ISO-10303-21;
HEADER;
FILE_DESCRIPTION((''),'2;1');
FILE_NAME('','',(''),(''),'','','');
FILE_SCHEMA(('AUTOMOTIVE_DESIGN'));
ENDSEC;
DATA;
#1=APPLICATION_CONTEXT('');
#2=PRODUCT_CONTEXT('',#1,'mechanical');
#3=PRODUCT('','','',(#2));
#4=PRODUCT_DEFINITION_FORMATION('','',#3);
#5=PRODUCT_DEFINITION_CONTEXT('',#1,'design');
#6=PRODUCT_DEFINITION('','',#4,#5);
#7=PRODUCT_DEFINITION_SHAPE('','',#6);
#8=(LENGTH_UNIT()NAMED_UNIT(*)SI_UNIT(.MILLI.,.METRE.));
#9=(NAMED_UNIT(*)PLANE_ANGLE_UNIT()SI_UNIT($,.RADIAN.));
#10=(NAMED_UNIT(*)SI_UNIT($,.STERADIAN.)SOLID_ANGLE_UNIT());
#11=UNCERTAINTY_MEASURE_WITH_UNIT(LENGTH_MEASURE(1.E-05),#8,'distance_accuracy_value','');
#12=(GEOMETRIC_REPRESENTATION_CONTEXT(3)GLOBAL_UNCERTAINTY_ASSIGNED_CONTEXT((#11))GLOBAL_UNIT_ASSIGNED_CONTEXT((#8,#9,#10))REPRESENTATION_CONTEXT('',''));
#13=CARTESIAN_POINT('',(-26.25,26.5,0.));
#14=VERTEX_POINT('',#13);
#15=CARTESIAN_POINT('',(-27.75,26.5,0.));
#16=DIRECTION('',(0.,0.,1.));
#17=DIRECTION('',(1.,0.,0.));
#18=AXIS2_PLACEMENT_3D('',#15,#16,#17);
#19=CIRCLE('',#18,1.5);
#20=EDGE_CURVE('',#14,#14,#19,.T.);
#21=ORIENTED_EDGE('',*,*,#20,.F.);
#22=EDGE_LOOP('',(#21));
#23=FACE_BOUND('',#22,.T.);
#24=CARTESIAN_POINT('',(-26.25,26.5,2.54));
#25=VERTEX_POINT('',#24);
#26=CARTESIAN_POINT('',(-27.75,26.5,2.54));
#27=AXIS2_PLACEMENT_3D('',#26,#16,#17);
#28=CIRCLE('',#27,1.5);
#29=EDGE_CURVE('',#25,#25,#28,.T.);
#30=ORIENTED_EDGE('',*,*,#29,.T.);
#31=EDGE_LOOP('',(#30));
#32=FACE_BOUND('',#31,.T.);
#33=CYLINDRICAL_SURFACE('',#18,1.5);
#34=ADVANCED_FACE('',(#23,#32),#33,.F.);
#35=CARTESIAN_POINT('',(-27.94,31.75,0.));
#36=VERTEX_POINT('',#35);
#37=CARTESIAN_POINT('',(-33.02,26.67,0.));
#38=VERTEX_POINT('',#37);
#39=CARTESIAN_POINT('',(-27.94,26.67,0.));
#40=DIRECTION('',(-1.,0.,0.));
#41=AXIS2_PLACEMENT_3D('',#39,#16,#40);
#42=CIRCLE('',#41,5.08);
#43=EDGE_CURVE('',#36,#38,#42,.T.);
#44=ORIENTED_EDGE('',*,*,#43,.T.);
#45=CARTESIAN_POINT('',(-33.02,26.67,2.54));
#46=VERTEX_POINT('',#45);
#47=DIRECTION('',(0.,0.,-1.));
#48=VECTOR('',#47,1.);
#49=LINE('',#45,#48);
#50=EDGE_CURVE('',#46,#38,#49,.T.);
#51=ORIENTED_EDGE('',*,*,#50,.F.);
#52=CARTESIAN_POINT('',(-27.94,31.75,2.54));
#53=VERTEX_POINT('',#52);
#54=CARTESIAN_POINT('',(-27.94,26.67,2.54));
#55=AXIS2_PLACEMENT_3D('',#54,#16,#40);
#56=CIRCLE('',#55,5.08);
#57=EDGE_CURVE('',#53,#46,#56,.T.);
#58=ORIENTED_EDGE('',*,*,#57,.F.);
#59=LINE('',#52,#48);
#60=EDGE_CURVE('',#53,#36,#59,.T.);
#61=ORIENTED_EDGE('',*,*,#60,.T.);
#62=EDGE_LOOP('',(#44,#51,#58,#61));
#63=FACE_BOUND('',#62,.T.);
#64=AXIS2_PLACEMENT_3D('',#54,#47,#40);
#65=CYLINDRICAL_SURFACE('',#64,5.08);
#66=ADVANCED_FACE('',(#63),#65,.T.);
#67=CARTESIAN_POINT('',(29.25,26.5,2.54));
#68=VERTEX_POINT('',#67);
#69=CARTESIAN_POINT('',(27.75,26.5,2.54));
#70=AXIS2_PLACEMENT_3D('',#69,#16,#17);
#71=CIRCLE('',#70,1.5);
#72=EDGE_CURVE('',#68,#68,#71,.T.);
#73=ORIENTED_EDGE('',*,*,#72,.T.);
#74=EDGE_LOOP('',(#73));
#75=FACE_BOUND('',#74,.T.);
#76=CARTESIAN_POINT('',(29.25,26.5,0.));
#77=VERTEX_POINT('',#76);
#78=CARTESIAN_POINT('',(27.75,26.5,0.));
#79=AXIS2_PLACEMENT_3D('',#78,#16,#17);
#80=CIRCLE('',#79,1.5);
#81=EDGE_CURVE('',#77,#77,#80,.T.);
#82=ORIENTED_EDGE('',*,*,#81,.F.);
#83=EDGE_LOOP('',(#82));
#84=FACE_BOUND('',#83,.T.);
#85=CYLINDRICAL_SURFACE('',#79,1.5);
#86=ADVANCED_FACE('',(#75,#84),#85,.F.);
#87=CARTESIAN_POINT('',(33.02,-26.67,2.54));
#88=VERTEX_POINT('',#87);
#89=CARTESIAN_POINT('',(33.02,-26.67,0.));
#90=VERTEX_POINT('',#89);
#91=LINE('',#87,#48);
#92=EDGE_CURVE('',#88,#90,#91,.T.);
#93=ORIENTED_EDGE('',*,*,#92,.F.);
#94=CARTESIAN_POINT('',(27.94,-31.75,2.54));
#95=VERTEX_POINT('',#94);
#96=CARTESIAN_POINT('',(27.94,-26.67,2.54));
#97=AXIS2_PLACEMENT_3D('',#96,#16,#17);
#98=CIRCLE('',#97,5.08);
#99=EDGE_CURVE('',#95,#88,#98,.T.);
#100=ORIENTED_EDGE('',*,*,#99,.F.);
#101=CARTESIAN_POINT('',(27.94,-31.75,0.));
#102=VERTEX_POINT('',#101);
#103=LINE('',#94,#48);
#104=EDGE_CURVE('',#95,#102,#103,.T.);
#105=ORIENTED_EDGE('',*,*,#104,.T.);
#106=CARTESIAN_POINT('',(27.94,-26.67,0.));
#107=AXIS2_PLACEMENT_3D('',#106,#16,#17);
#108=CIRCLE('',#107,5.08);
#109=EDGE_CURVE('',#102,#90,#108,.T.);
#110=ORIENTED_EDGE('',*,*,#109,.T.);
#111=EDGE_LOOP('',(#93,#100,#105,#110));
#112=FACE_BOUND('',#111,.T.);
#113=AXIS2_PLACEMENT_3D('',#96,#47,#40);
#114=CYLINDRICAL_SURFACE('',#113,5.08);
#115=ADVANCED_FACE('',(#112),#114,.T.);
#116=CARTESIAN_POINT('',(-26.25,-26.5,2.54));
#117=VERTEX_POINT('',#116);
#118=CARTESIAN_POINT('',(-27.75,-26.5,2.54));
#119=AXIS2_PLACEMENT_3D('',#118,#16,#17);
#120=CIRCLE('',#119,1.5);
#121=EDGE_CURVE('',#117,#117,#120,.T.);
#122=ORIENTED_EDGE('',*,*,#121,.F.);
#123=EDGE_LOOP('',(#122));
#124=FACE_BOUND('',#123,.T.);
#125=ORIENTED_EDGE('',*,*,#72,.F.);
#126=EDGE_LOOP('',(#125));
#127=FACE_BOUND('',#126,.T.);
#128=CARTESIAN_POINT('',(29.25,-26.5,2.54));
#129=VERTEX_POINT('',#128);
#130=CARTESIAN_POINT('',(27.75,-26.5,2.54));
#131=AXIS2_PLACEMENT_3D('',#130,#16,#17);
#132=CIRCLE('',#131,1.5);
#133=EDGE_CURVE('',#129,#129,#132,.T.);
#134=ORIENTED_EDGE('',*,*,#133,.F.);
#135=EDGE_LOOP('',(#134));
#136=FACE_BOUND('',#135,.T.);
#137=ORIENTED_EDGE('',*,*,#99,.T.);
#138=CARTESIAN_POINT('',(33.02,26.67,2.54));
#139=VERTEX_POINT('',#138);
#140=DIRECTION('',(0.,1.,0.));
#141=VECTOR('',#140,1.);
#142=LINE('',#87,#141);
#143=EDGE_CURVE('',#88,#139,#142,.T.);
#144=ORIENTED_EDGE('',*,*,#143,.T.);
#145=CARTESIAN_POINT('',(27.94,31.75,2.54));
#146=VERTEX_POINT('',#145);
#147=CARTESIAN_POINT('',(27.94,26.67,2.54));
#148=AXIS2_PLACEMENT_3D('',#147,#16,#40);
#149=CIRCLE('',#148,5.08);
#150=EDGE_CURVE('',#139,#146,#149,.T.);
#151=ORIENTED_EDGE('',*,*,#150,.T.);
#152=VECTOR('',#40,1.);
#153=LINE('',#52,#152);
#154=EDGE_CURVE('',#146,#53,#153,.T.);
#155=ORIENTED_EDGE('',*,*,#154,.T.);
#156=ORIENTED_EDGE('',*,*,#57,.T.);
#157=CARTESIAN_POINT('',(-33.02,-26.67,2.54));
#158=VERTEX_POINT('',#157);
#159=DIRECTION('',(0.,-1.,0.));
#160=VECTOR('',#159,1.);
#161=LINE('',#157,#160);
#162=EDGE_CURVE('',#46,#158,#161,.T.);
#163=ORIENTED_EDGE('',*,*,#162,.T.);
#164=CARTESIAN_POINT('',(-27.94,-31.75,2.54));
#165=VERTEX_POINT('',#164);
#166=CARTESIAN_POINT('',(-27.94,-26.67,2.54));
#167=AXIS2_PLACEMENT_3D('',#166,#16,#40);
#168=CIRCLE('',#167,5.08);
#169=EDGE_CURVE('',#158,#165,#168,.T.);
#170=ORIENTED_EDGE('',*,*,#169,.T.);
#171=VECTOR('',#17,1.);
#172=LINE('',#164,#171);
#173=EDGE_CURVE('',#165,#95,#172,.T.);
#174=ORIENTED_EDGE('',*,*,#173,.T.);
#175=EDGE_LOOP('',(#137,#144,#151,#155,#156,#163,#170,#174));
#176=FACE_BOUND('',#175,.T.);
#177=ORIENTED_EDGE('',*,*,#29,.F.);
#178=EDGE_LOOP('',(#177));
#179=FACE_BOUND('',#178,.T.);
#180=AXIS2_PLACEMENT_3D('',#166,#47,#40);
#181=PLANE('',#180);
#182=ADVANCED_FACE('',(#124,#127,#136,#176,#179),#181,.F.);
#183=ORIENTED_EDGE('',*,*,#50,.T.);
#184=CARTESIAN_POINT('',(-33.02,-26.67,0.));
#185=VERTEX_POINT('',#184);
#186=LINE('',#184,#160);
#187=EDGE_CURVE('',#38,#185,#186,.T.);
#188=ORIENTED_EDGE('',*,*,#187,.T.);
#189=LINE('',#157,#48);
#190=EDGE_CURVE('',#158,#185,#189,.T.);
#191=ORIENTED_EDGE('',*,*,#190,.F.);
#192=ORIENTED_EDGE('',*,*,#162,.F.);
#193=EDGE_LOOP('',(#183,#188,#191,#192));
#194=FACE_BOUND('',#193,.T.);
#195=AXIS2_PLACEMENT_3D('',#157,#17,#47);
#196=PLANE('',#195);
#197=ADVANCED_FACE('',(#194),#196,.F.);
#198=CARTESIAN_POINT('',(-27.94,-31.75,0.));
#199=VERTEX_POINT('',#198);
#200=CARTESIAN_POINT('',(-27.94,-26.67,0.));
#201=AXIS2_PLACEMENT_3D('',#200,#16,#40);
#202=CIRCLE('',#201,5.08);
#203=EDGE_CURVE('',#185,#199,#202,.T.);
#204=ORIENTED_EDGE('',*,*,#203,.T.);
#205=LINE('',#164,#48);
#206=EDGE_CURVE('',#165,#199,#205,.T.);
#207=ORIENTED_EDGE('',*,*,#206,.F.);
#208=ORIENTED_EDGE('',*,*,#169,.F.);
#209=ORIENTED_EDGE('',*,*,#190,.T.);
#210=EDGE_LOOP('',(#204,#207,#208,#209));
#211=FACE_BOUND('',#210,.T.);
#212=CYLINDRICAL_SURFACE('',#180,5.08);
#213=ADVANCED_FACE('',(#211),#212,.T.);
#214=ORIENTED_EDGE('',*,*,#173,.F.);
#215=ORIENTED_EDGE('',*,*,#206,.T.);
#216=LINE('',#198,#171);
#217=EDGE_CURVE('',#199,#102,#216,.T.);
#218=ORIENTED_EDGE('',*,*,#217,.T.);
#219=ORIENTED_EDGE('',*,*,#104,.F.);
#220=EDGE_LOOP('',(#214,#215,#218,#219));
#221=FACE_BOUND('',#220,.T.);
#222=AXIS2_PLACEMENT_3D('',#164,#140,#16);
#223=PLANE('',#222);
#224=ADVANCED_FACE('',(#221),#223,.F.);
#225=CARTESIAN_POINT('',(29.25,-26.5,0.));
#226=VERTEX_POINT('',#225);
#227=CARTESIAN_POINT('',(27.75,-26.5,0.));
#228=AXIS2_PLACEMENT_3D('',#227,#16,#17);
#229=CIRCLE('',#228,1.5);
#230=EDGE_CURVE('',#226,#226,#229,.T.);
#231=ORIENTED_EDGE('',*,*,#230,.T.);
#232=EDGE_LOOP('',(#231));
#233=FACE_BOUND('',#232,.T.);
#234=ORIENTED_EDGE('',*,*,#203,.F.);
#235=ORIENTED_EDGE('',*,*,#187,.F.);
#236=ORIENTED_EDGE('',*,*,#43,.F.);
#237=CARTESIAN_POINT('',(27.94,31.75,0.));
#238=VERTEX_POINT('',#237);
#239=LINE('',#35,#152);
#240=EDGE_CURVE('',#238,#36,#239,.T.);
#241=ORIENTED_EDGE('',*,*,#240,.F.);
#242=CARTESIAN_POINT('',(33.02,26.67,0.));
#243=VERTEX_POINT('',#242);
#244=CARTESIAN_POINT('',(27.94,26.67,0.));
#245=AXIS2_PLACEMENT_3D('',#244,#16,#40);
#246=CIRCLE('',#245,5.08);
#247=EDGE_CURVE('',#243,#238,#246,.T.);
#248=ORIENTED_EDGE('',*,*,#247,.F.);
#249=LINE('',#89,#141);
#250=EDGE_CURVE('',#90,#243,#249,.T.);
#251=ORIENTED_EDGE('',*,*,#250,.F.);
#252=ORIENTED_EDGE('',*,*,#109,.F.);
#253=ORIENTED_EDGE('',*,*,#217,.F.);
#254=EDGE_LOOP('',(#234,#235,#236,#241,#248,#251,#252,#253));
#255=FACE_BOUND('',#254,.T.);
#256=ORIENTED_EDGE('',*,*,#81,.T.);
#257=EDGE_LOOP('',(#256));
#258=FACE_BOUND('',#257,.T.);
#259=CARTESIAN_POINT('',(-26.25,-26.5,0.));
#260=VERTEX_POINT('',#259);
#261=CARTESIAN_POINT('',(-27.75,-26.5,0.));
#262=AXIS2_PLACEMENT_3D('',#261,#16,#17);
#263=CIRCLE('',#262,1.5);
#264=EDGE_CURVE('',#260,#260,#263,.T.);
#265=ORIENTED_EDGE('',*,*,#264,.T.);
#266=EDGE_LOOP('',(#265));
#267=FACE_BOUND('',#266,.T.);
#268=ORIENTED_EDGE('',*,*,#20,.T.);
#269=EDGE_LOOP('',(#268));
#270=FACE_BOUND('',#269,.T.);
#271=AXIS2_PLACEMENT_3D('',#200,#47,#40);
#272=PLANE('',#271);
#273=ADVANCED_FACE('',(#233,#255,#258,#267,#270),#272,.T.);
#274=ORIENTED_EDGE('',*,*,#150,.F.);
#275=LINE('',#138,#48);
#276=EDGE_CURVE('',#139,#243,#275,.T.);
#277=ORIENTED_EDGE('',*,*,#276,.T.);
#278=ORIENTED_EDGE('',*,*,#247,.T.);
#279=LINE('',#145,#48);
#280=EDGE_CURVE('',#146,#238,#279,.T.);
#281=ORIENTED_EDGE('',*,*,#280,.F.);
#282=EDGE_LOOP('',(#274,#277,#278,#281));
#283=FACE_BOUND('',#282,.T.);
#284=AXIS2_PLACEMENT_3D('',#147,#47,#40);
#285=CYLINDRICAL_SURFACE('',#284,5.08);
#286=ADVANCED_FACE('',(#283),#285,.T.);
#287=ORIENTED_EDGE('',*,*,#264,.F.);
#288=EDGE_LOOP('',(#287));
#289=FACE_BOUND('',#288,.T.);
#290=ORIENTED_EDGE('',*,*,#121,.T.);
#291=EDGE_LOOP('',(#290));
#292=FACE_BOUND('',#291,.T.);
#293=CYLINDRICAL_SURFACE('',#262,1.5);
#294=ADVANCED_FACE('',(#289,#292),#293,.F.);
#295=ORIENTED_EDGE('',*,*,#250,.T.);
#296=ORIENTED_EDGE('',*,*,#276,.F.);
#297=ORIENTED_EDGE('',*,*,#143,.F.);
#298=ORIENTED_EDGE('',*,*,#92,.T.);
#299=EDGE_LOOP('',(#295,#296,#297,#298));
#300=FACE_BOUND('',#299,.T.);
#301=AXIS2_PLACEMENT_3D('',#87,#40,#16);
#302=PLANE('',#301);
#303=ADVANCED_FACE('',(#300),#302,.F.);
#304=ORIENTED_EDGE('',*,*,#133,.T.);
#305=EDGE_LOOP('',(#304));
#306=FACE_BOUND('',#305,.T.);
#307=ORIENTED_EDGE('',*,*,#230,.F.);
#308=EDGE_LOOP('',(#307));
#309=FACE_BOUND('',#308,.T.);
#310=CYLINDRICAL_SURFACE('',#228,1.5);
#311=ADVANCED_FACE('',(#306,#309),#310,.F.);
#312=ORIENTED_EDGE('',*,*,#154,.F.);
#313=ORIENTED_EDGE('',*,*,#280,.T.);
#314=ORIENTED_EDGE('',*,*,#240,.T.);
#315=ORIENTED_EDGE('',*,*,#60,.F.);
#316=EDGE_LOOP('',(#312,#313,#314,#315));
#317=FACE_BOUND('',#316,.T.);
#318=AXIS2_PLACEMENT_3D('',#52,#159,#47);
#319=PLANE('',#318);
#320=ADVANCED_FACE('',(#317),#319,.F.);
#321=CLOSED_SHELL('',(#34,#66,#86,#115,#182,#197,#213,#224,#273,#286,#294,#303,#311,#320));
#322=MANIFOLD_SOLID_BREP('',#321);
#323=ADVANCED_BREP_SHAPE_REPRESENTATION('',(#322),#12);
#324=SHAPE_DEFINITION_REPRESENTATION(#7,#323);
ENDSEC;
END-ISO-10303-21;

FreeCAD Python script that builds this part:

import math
import FreeCAD as App
import Part
import Sketcher
from FreeCAD import Vector
Q = App.Units.Quantity

doc = App.newDocument("Part")
params = doc.addObject("Spreadsheet::Sheet", "Params")
for row, (alias, value) in enumerate([
    ("sketch1_radius", "0.2 in"),
    ("sketch1_width", "2.2 in"),
    ("sketch1_height", "2.1 in"),
    ("pad1_length", "0.1 in"),
], start=1):
    params.set(f"A{row}", alias)
    params.set(f"B{row}", "=" + value)
    params.setAlias(f"B{row}", alias)

body = doc.addObject("PartDesign::Body", "Body")

# Sketch on XY plane
sketch1 = body.newObject("Sketcher::SketchObject", "Sketch")
sketch1.AttachmentSupport = (doc.getObject("XY_Plane"), [""])
sketch1.MapMode = "FlatFace"
sketch1.addGeometry(Part.LineSegment(Vector(-27.94, -31.75, 0), Vector(27.94, -31.75, 0)), False)
sketch1.addGeometry(Part.ArcOfCircle(Part.Circle(Vector(27.94, -26.67, 0), Vector(0, 0, 1), 5.08), math.radians(-90), math.radians(0)), False)
sketch1.addGeometry(Part.LineSegment(Vector(33.02, -26.67, 0), Vector(33.02, 26.67, 0)), False)
sketch1.addGeometry(Part.ArcOfCircle(Part.Circle(Vector(27.94, 26.67, 0), Vector(0, 0, 1), 5.08), math.radians(0), math.radians(90)), False)
sketch1.addGeometry(Part.LineSegment(Vector(27.94, 31.75, 0), Vector(-27.94, 31.75, 0)), False)
sketch1.addGeometry(Part.ArcOfCircle(Part.Circle(Vector(-27.94, 26.67, 0), Vector(0, 0, 1), 5.08), math.radians(90), math.radians(180)), False)
sketch1.addGeometry(Part.LineSegment(Vector(-33.02, 26.67, 0), Vector(-33.02, -26.67, 0)), False)
sketch1.addGeometry(Part.ArcOfCircle(Part.Circle(Vector(-27.94, -26.67, 0), Vector(0, 0, 1), 5.08), math.radians(-180), math.radians(-90)), False)
sketch1.addConstraint(Sketcher.Constraint("Tangent", 0, 2, 1, 1))
sketch1.addConstraint(Sketcher.Constraint("Tangent", 1, 2, 2, 1))
sketch1.addConstraint(Sketcher.Constraint("Tangent", 2, 2, 3, 1))
sketch1.addConstraint(Sketcher.Constraint("Tangent", 3, 2, 4, 1))
sketch1.addConstraint(Sketcher.Constraint("Tangent", 4, 2, 5, 1))
sketch1.addConstraint(Sketcher.Constraint("Tangent", 5, 2, 6, 1))
sketch1.addConstraint(Sketcher.Constraint("Tangent", 6, 2, 7, 1))
sketch1.addConstraint(Sketcher.Constraint("Tangent", 7, 2, 0, 1))
sketch1.addConstraint(Sketcher.Constraint("Horizontal", 0))
sketch1.addConstraint(Sketcher.Constraint("Vertical", 2))
sketch1.addConstraint(Sketcher.Constraint("Horizontal", 4))
sketch1.addConstraint(Sketcher.Constraint("Vertical", 6))
sketch1.addConstraint(Sketcher.Constraint("Equal", 1, 3))
sketch1.addConstraint(Sketcher.Constraint("Equal", 3, 5))
sketch1.addConstraint(Sketcher.Constraint("Equal", 5, 7))
sketch1.addConstraint(Sketcher.Constraint("Symmetric", 1, 3, 5, 3, -1, 1))
sketch1.addConstraint(Sketcher.Constraint("Radius", 1, Q("0.2 in")))
sketch1.addConstraint(Sketcher.Constraint("DistanceX", 0, 1, 0, 2, Q("2.2 in")))
sketch1.addConstraint(Sketcher.Constraint("DistanceY", 2, 1, 2, 2, Q("2.1 in")))
sketch1.setExpression("Constraints[16]", "Params.sketch1_radius")
sketch1.setExpression("Constraints[17]", "Params.sketch1_width")
sketch1.setExpression("Constraints[18]", "Params.sketch1_height")
pad1 = body.newObject("PartDesign::Pad", "Pad")
pad1.Profile = sketch1
pad1.setExpression("Length", "Params.pad1_length")

# Sketch on XY plane
sketch2 = body.newObject("Sketcher::SketchObject", "Sketch001")
sketch2.AttachmentSupport = (doc.getObject("XY_Plane"), [""])
sketch2.MapMode = "FlatFace"
sketch2.AttachmentOffset = App.Placement(Vector(0, 0, 0.1 * 25.4), App.Rotation())
sketch2.addGeometry(Part.Circle(Vector(-27.75, 26.5, 0), Vector(0, 0, 1), 1.5), False)
sketch2.addGeometry(Part.Circle(Vector(27.75, 26.5, 0), Vector(0, 0, 1), 1.5), False)
sketch2.addGeometry(Part.Circle(Vector(-27.75, -26.5, 0), Vector(0, 0, 1), 1.5), False)
sketch2.addGeometry(Part.Circle(Vector(27.75, -26.5, 0), Vector(0, 0, 1), 1.5), False)
sketch2.addConstraint(Sketcher.Constraint("Equal", 0, 1))
sketch2.addConstraint(Sketcher.Constraint("Equal", 1, 2))
sketch2.addConstraint(Sketcher.Constraint("Equal", 2, 3))
sketch2.addConstraint(Sketcher.Constraint("Symmetric", 1, 3, 2, 3, -1, 1))
sketch2.addConstraint(Sketcher.Constraint("Symmetric", 0, 3, 3, 3, -1, 1))
sketch2.addConstraint(Sketcher.Constraint("Symmetric", 0, 3, 1, 3, -2))
sketch2.addConstraint(Sketcher.Constraint("Diameter", 0, Q("3 mm")))
sketch2.addConstraint(Sketcher.Constraint("DistanceX", 0, 3, -1, 1, Q("27.75 mm")))
sketch2.addConstraint(Sketcher.Constraint("DistanceY", -1, 1, 0, 3, Q("26.5 mm")))
pocket1 = body.newObject("PartDesign::Pocket", "Pocket")
pocket1.Profile = sketch2
pocket1.Type = "ThroughAll"

doc.recompute()
